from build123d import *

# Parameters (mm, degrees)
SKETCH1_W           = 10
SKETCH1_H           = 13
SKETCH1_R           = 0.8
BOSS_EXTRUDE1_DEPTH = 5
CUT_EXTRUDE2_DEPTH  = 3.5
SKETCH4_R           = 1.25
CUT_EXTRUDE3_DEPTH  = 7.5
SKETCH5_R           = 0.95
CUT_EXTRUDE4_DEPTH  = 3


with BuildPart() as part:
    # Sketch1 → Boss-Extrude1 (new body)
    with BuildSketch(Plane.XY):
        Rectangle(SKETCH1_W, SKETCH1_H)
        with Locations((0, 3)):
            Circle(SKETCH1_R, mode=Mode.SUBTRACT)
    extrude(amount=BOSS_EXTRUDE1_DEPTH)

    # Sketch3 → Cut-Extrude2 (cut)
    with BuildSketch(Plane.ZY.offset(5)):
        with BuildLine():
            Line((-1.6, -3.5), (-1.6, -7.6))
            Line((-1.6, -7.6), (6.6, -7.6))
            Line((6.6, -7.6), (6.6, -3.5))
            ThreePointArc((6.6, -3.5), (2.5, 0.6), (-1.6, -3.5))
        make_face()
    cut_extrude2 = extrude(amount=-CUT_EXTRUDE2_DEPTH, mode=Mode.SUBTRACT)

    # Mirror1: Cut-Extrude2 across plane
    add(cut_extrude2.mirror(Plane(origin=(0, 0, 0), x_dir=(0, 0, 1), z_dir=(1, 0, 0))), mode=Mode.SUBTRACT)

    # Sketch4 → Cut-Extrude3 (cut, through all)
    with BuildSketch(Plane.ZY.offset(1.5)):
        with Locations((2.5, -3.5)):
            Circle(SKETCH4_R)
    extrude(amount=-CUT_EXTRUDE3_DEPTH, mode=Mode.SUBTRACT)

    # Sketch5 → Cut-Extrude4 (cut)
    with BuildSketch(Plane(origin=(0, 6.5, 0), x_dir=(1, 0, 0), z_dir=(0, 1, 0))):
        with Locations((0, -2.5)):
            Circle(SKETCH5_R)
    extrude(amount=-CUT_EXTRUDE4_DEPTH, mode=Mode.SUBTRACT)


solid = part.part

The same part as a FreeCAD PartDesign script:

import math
import FreeCAD as App
import Part
import Sketcher

V = App.Vector


def add_polygon(sketch, points):
    """Adds a closed chain of lines whose ends are joined by coincident constraints."""
    first, n = sketch.GeometryCount, len(points)
    for a, b in zip(points, points[1:] + points[:1]):
        sketch.addGeometry(Part.LineSegment(App.Vector(*a, 0), App.Vector(*b, 0)), False)
    for i in range(n):
        sketch.addConstraint(Sketcher.Constraint("Coincident", first + i, 2, first + (i + 1) % n, 1))

doc = App.newDocument("Part")
body = doc.addObject("PartDesign::Body", "Body")

sketch1 = body.newObject("Sketcher::SketchObject", "Sketch")
sketch1.AttachmentSupport = (doc.getObject("XY_Plane"), [""])
sketch1.MapMode = "FlatFace"
add_polygon(sketch1, [(-5, 6.5), (-5, -6.5), (5, -6.5), (5, 6.5)])
sketch1.addGeometry(Part.Circle(V(0, 3, 0), V(0, 0, 1), 0.8), False)
sketch1.addConstraint([
    Sketcher.Constraint("Vertical", 0),
    Sketcher.Constraint("Horizontal", 1),
    Sketcher.Constraint("Vertical", 2),
    Sketcher.Constraint("Horizontal", 3),
    Sketcher.Constraint("Symmetric", 0, 2, 2, 2, -1, 1),
    Sketcher.Constraint("PointOnObject", 4, 3, -2),
    Sketcher.Constraint("Diameter", 4, 1.6),
    Sketcher.Constraint("DistanceX", 1, 1, 1, 2, 10.0),
    Sketcher.Constraint("DistanceY", 0, 2, 0, 1, 13.0),
    Sketcher.Constraint("DistanceY", -1, 1, 4, 3, 3.0),
])
pad1 = body.newObject("PartDesign::Pad", "Pad")
pad1.Profile = sketch1
pad1.Length = 5

sketch2 = body.newObject("Sketcher::SketchObject", "Sketch001")
sketch2.AttachmentSupport = (doc.getObject("YZ_Plane"), [""])
sketch2.MapMode = "FlatFace"
sketch2.AttachmentOffset = App.Placement(V(0, 0, -5), App.Rotation())
sketch2.addGeometry([
    Part.LineSegment(V(-3.5, -1.6, 0), V(-7.6, -1.6, 0)),
    Part.LineSegment(V(-7.6, -1.6, 0), V(-7.6, 6.6, 0)),
    Part.LineSegment(V(-7.6, 6.6, 0), V(-3.5, 6.6, 0)),
    Part.ArcOfCircle(Part.Circle(V(-3.5, 2.5, 0), V(0, 0, 1), 4.1), math.radians(-90), math.radians(90)),
], False)
sketch2.addConstraint([
    Sketcher.Constraint("Coincident", 0, 2, 1, 1),
    Sketcher.Constraint("Coincident", 1, 2, 2, 1),
    Sketcher.Constraint("Tangent", 2, 2, 3, 2),
    Sketcher.Constraint("Tangent", 3, 1, 0, 1),
    Sketcher.Constraint("Horizontal", 0),
    Sketcher.Constraint("Vertical", 1),
    Sketcher.Constraint("Horizontal", 2),
    Sketcher.Constraint("Radius", 3, 4.1),
    Sketcher.Constraint("DistanceX", 0, 2, 0, 1, 4.1),
    Sketcher.Constraint("DistanceX", 3, 3, -1, 1, 3.5),
    Sketcher.Constraint("DistanceY", -1, 1, 3, 3, 2.5),
])
pocket1 = body.newObject("PartDesign::Pocket", "Pocket")
pocket1.Profile = sketch2
pocket1.Length = 3.5
pocket1.Reversed = True
doc.recompute()

mirrored = body.newObject("PartDesign::Mirrored", "Mirrored")
mirrored.Originals = [pocket1]
mirrored.MirrorPlane = (doc.getObject("YZ_Plane"), [""])
body.Tip = mirrored

sketch3 = body.newObject("Sketcher::SketchObject", "Sketch002")
sketch3.AttachmentSupport = (doc.getObject("YZ_Plane"), [""])
sketch3.MapMode = "FlatFace"
sketch3.AttachmentOffset = App.Placement(V(0, 0, -1.5), App.Rotation())
sketch3.addGeometry(Part.Circle(V(-3.5, 2.5, 0), V(0, 0, 1), 1.2), False)
sketch3.addConstraint([
    Sketcher.Constraint("Diameter", 0, 2.5),
    Sketcher.Constraint("DistanceX", 0, 3, -1, 1, 3.5),
    Sketcher.Constraint("DistanceY", -1, 1, 0, 3, 2.5),
])
pocket2 = body.newObject("PartDesign::Pocket", "Pocket001")
pocket2.Profile = sketch3
pocket2.Type = "ThroughAll"
pocket2.Reversed = True

sketch4 = body.newObject("Sketcher::SketchObject", "Sketch003")
sketch4.AttachmentSupport = (doc.getObject("XZ_Plane"), [""])
sketch4.MapMode = "FlatFace"
sketch4.AttachmentOffset = App.Placement(V(0, 0, -6.5), App.Rotation())
sketch4.addGeometry(Part.Circle(V(0, 2.5, 0), V(0, 0, 1), 0.9), False)
sketch4.addConstraint([
    Sketcher.Constraint("PointOnObject", 0, 3, -2),
    Sketcher.Constraint("Diameter", 0, 1.9),
    Sketcher.Constraint("DistanceY", -1, 1, 0, 3, 2.5),
])
pocket3 = body.newObject("PartDesign::Pocket", "Pocket002")
pocket3.Profile = sketch4
pocket3.Length = 3
pocket3.Reversed = True

doc.recompute()
